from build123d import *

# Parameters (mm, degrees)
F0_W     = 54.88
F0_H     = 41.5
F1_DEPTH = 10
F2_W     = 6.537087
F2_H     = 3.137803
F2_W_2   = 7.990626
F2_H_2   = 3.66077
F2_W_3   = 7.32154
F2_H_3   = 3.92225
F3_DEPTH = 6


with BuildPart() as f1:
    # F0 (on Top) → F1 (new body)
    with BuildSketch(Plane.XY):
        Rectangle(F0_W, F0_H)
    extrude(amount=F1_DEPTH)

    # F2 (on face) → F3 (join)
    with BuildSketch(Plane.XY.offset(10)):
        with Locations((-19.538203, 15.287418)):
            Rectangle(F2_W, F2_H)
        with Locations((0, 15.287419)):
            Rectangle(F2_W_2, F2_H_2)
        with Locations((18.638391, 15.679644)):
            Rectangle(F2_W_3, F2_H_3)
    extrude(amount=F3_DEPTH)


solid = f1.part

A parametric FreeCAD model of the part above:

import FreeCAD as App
import Part
import Sketcher


def add_polygon(sketch, points):
    """Adds a closed chain of lines whose ends are joined by coincident constraints."""
    first, n = sketch.GeometryCount, len(points)
    for a, b in zip(points, points[1:] + points[:1]):
        sketch.addGeometry(Part.LineSegment(App.Vector(*a, 0), App.Vector(*b, 0)), False)
    for i in range(n):
        sketch.addConstraint(Sketcher.Constraint("Coincident", first + i, 2, first + (i + 1) % n, 1))

doc = App.newDocument("Part")
body = doc.addObject("PartDesign::Body", "Body")

# Sketch on XY plane
sketch1 = doc.addObject("Sketcher::SketchObject", "Sketch")
body.addObject(sketch1)
sketch1.AttachmentSupport = (doc.XY_Plane, [""])
sketch1.MapMode = "FlatFace"
add_polygon(sketch1, [(-27, 21), (-27, -21), (27, -21), (27, 21)])  # lines 0-3
sketch1.addConstraint(Sketcher.Constraint("Vertical", 0))
sketch1.addConstraint(Sketcher.Constraint("Horizontal", 1))
sketch1.addConstraint(Sketcher.Constraint("Vertical", 2))
sketch1.addConstraint(Sketcher.Constraint("Horizontal", 3))
sketch1.addConstraint(Sketcher.Constraint("Symmetric", 0, 2, 2, 2, -1, 1))
sketch1.addConstraint(Sketcher.Constraint("DistanceY", 0, 2, 0, 1, 41.5))
sketch1.addConstraint(Sketcher.Constraint("DistanceX", 1, 1, 1, 2, 54.88))
pad1 = doc.addObject("PartDesign::Pad", "Pad")
body.addObject(pad1)
pad1.Profile = sketch1
pad1.Length = 10

# Sketch on XY plane
sketch2 = doc.addObject("Sketcher::SketchObject", "Sketch001")
body.addObject(sketch2)
sketch2.AttachmentSupport = (doc.XY_Plane, [""])
sketch2.MapMode = "FlatFace"
sketch2.AttachmentOffset = App.Placement(App.Vector(0, 0, 10), App.Rotation())
add_polygon(sketch2, [(-22.8, 16.9), (-22.8, 13.7), (-16.3, 13.7), (-16.3, 16.9)])  # lines 0-3
add_polygon(sketch2, [(-4, 17.1), (-4, 13.5), (4, 13.5), (4, 17.1)])  # lines 4-7
add_polygon(sketch2, [(15, 17.6), (15, 13.7), (22.3, 13.7), (22.3, 17.6)])  # lines 8-11
sketch2.addConstraint(Sketcher.Constraint("Vertical", 0))
sketch2.addConstraint(Sketcher.Constraint("Horizontal", 1))
sketch2.addConstraint(Sketcher.Constraint("Vertical", 2))
sketch2.addConstraint(Sketcher.Constraint("Horizontal", 3))
sketch2.addConstraint(Sketcher.Constraint("Vertical", 4))
sketch2.addConstraint(Sketcher.Constraint("Horizontal", 5))
sketch2.addConstraint(Sketcher.Constraint("Vertical", 6))
sketch2.addConstraint(Sketcher.Constraint("Horizontal", 7))
sketch2.addConstraint(Sketcher.Constraint("Vertical", 8))
sketch2.addConstraint(Sketcher.Constraint("Horizontal", 9))
sketch2.addConstraint(Sketcher.Constraint("Vertical", 10))
sketch2.addConstraint(Sketcher.Constraint("Horizontal", 11))
sketch2.addConstraint(Sketcher.Constraint("DistanceX", 9, 1, 9, 2, 7.32154))
sketch2.addConstraint(Sketcher.Constraint("DistanceY", 4, 2, 4, 1, 3.66077))
sketch2.addConstraint(Sketcher.Constraint("DistanceY", 8, 2, 8, 1, 3.92225))
sketch2.addConstraint(Sketcher.Constraint("DistanceX", 1, 1, 1, 2, 6.537087))
sketch2.addConstraint(Sketcher.Constraint("DistanceX", 5, 1, 5, 2, 7.990626))
sketch2.addConstraint(Sketcher.Constraint("DistanceY", 0, 2, 0, 1, 3.137803))
sketch2.addConstraint(Sketcher.Constraint("DistanceX", 1, 2, -1, 1, 16.269659))
sketch2.addConstraint(Sketcher.Constraint("DistanceY", -1, 1, 2, 2, 16.85632))
sketch2.addConstraint(Sketcher.Constraint("DistanceX", -1, 1, 8, 2, 14.977621))
sketch2.addConstraint(Sketcher.Constraint("DistanceY", -1, 1, 8, 2, 13.718519))
sketch2.addConstraint(Sketcher.Constraint("DistanceX", 0, 2, 5, 2, 26.802059))
sketch2.addConstraint(Sketcher.Constraint("DistanceY", -1, 1, 4, 2, 13.457034))
pad2 = doc.addObject("PartDesign::Pad", "Pad001")
body.addObject(pad2)
pad2.Profile = sketch2
pad2.Length = 6

doc.recompute()
